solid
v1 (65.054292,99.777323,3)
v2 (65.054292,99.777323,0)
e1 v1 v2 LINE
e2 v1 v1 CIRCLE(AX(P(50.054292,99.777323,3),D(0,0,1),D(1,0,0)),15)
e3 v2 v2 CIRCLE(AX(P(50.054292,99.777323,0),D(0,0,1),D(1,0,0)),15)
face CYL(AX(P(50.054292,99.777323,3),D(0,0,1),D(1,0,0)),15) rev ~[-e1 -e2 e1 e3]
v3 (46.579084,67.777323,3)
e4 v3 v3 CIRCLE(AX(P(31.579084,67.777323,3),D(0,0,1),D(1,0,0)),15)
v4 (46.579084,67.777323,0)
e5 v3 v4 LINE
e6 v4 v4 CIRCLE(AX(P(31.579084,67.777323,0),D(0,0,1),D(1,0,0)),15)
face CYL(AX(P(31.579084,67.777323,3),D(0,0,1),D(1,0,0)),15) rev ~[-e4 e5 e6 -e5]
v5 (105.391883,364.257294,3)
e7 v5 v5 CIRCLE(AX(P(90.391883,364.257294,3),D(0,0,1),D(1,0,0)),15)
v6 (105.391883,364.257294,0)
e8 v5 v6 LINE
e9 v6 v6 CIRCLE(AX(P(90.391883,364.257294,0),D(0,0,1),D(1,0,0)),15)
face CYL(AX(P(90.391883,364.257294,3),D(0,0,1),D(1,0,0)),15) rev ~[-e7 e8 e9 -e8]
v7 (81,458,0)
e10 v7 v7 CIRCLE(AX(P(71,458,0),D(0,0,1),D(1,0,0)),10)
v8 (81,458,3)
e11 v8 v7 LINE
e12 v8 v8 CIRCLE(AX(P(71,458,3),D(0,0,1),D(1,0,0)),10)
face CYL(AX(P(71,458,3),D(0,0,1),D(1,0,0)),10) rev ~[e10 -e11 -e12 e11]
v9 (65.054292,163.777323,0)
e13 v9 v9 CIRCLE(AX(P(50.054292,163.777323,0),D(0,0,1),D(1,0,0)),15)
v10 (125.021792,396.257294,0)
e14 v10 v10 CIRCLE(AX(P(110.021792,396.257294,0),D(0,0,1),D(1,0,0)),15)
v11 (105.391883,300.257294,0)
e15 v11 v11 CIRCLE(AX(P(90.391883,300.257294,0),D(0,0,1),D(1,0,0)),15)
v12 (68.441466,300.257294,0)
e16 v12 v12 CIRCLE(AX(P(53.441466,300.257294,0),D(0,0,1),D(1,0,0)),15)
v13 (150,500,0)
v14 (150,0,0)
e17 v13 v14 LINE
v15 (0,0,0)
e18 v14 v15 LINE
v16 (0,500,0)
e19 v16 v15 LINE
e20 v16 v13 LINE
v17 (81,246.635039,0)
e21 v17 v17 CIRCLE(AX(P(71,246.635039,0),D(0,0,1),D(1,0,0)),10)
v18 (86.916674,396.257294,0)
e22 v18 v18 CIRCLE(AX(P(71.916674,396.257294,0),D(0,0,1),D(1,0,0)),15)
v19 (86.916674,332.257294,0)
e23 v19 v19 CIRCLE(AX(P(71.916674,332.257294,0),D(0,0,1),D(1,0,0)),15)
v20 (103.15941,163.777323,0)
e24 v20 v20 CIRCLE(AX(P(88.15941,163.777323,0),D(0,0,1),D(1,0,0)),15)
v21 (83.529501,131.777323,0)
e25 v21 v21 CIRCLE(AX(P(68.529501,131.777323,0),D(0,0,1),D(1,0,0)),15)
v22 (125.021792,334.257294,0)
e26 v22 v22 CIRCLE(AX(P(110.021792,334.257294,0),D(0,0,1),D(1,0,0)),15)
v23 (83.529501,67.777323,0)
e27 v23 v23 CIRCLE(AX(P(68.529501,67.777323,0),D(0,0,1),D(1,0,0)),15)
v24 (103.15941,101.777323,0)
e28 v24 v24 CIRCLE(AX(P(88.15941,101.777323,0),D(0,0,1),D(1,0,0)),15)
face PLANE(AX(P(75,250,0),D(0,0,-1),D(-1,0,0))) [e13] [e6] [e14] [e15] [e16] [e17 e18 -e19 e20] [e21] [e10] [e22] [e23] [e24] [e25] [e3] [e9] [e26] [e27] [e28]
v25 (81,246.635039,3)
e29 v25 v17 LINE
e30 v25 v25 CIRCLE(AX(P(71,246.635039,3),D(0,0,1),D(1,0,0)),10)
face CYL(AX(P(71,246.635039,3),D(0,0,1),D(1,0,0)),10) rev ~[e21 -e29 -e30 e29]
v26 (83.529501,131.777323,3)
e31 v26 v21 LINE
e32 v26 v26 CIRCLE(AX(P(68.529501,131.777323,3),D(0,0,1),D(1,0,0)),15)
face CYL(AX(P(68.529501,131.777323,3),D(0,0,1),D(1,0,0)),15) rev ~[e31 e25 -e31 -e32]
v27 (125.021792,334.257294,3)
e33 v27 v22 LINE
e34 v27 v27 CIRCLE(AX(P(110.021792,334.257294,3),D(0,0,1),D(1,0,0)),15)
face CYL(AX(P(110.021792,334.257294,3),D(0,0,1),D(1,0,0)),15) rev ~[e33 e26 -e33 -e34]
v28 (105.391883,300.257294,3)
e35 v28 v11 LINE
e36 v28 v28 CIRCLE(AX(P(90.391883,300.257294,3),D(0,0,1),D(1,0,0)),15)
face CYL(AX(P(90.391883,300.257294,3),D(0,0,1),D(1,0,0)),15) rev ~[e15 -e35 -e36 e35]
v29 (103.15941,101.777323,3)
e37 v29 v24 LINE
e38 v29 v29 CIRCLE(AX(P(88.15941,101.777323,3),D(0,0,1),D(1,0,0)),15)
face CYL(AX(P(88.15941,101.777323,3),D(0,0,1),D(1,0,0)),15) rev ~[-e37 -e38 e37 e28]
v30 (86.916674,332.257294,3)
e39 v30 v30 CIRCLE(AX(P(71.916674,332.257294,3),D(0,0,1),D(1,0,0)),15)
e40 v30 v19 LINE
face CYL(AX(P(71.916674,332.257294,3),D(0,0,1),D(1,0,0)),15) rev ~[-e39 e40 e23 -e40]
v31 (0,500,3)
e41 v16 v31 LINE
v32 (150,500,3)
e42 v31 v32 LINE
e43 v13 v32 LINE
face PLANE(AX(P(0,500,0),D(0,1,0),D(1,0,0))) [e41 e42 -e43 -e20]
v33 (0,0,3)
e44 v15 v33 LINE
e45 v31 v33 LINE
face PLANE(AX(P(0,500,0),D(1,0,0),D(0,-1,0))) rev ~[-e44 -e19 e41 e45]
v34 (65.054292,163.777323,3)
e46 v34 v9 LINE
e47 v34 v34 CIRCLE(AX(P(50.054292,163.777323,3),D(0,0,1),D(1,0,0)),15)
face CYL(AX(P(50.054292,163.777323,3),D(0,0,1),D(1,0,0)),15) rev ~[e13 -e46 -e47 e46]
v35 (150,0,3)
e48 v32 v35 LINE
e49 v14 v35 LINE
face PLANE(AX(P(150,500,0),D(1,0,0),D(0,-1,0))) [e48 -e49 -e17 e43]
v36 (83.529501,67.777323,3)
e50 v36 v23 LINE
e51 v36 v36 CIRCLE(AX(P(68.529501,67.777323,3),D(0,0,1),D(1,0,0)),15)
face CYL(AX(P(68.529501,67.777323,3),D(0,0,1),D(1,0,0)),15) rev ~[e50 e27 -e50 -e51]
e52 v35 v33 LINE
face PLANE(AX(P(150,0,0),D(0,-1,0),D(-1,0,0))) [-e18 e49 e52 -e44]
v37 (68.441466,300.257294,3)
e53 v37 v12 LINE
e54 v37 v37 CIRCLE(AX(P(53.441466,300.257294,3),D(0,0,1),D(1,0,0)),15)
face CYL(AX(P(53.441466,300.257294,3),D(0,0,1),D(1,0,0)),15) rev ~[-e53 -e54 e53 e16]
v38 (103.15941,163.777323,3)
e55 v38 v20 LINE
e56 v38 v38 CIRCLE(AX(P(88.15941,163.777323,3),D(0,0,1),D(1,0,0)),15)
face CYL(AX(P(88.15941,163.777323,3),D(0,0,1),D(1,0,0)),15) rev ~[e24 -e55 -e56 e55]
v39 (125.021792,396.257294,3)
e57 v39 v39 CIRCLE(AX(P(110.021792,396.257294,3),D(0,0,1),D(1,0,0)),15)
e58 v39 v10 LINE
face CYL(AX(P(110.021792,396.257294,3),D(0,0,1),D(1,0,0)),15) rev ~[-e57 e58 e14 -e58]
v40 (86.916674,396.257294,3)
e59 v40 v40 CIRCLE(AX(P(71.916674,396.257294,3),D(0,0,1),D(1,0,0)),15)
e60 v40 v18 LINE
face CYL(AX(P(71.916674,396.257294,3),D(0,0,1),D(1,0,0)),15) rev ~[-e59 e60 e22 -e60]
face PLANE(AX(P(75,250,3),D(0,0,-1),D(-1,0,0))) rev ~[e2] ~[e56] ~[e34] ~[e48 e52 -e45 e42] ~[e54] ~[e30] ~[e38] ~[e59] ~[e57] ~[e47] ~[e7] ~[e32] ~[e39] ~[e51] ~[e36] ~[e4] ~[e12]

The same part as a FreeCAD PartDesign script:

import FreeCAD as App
import Part
import Sketcher

doc = App.newDocument("Part")
body = doc.addObject("PartDesign::Body", "Body")

sketch1 = body.newObject("Sketcher::SketchObject", "Sketch")
sketch1.AttachmentSupport = (doc.getObject("XY_Plane"), [""])
sketch1.MapMode = "FlatFace"
sketch1.addGeometry(Part.LineSegment(App.Vector(150, 500, 0), App.Vector(0, 500, 0)), False)
sketch1.addGeometry(Part.LineSegment(App.Vector(0, 500, 0), App.Vector(0, 0, 0)), False)
sketch1.addGeometry(Part.LineSegment(App.Vector(0, 0, 0), App.Vector(150, 0, 0)), False)
sketch1.addGeometry(Part.LineSegment(App.Vector(150, 0, 0), App.Vector(150, 500, 0)), False)
sketch1.addConstraint(Sketcher.Constraint("Coincident", 0, 2, 1, 1))
sketch1.addConstraint(Sketcher.Constraint("Coincident", 1, 2, 2, 1))
sketch1.addConstraint(Sketcher.Constraint("Coincident", 2, 2, 3, 1))
sketch1.addConstraint(Sketcher.Constraint("Coincident", 3, 2, 0, 1))
sketch1.addConstraint(Sketcher.Constraint("Horizontal", 0))
sketch1.addConstraint(Sketcher.Constraint("Vertical", 1))
sketch1.addConstraint(Sketcher.Constraint("Horizontal", 2))
sketch1.addConstraint(Sketcher.Constraint("Vertical", 3))
sketch1.addConstraint(Sketcher.Constraint("Coincident", 1, 2, -1, 1))
sketch1.addConstraint(Sketcher.Constraint("DistanceX", 0, 2, 0, 1, 150.0))
sketch1.addConstraint(Sketcher.Constraint("DistanceY", 1, 2, 1, 1, 500.0))
pad1 = body.newObject("PartDesign::Pad", "Pad")
pad1.Profile = sketch1
pad1.Length = 3

sketch2 = body.newObject("Sketcher::SketchObject", "Sketch001")
sketch2.AttachmentSupport = (doc.getObject("XY_Plane"), [""])
sketch2.MapMode = "FlatFace"
sketch2.AttachmentOffset = App.Placement(App.Vector(0, 0, 3), App.Rotation())
sketch2.addGeometry(Part.Circle(App.Vector(32, 68, 0), App.Vector(0, 0, 1), 15), False)
sketch2.addGeometry(Part.Circle(App.Vector(50, 100, 0), App.Vector(0, 0, 1), 15), False)
sketch2.addGeometry(Part.Circle(App.Vector(69, 132, 0), App.Vector(0, 0, 1), 15), False)
sketch2.addGeometry(Part.Circle(App.Vector(50, 164, 0), App.Vector(0, 0, 1), 15), False)
sketch2.addGeometry(Part.Circle(App.Vector(71, 247, 0), App.Vector(0, 0, 1), 10), False)
sketch2.addGeometry(Part.Circle(App.Vector(69, 68, 0), App.Vector(0, 0, 1), 15), False)
sketch2.addGeometry(Part.Circle(App.Vector(88, 102, 0), App.Vector(0, 0, 1), 15), False)
sketch2.addGeometry(Part.Circle(App.Vector(88, 164, 0), App.Vector(0, 0, 1), 15), False)
sketch2.addGeometry(Part.Circle(App.Vector(53, 300, 0), App.Vector(0, 0, 1), 15), False)
sketch2.addGeometry(Part.Circle(App.Vector(72, 332, 0), App.Vector(0, 0, 1), 15), False)
sketch2.addGeometry(Part.Circle(App.Vector(90, 364, 0), App.Vector(0, 0, 1), 15), False)
sketch2.addGeometry(Part.Circle(App.Vector(72, 396, 0), App.Vector(0, 0, 1), 15), False)
sketch2.addGeometry(Part.Circle(App.Vector(71, 458, 0), App.Vector(0, 0, 1), 10), False)
sketch2.addGeometry(Part.Circle(App.Vector(90, 300, 0), App.Vector(0, 0, 1), 15), False)
sketch2.addGeometry(Part.Circle(App.Vector(110, 334, 0), App.Vector(0, 0, 1), 15), False)
sketch2.addGeometry(Part.Circle(App.Vector(110, 396, 0), App.Vector(0, 0, 1), 15), False)
sketch2.addConstraint(Sketcher.Constraint("Equal", 0, 1))
sketch2.addConstraint(Sketcher.Constraint("Equal", 1, 2))
sketch2.addConstraint(Sketcher.Constraint("Equal", 2, 3))
sketch2.addConstraint(Sketcher.Constraint("Equal", 3, 5))
sketch2.addConstraint(Sketcher.Constraint("Equal", 5, 6))
sketch2.addConstraint(Sketcher.Constraint("Equal", 6, 7))
sketch2.addConstraint(Sketcher.Constraint("Equal", 7, 8))
sketch2.addConstraint(Sketcher.Constraint("Equal", 8, 9))
sketch2.addConstraint(Sketcher.Constraint("Equal", 9, 10))
sketch2.addConstraint(Sketcher.Constraint("Equal", 10, 11))
sketch2.addConstraint(Sketcher.Constraint("Equal", 4, 12))
sketch2.addConstraint(Sketcher.Constraint("Equal", 11, 13))
sketch2.addConstraint(Sketcher.Constraint("Equal", 13, 14))
sketch2.addConstraint(Sketcher.Constraint("Equal", 14, 15))
sketch2.addConstraint(Sketcher.Constraint("Horizontal", 0, 3, 5, 3))
sketch2.addConstraint(Sketcher.Constraint("Horizontal", 3, 3, 7, 3))
sketch2.addConstraint(Sketcher.Constraint("Horizontal", 8, 3, 13, 3))
sketch2.addConstraint(Sketcher.Constraint("Horizontal", 11, 3, 15, 3))
sketch2.addConstraint(Sketcher.Constraint("Vertical", 1, 3, 3, 3))
sketch2.addConstraint(Sketcher.Constraint("Vertical", 2, 3, 5, 3))
sketch2.addConstraint(Sketcher.Constraint("Vertical", 6, 3, 7, 3))
sketch2.addConstraint(Sketcher.Constraint("Vertical", 9, 3, 11, 3))
sketch2.addConstraint(Sketcher.Constraint("Vertical", 4, 3, 12, 3))
sketch2.addConstraint(Sketcher.Constraint("Vertical", 10, 3, 13, 3))
sketch2.addConstraint(Sketcher.Constraint("Vertical", 14, 3, 15, 3))
sketch2.addConstraint(Sketcher.Constraint("Diameter", 0, 30.0))
sketch2.addConstraint(Sketcher.Constraint("Diameter", 4, 20.0))
sketch2.addConstraint(Sketcher.Constraint("DistanceX", -1, 1, 4, 3, 71.0))
sketch2.addConstraint(Sketcher.Constraint("DistanceY", -1, 1, 12, 3, 458.0))
sketch2.addConstraint(Sketcher.Constraint("DistanceY", 0, 3, 1, 3, 32.0))
sketch2.addConstraint(Sketcher.Constraint("DistanceY", 1, 3, 2, 3, 32.0))
sketch2.addConstraint(Sketcher.Constraint("DistanceY", 2, 3, 3, 3, 32.0))
sketch2.addConstraint(Sketcher.Constraint("DistanceY", 6, 3, 2, 3, 30.0))
sketch2.addConstraint(Sketcher.Constraint("DistanceY", 8, 3, 9, 3, 32.0))
sketch2.addConstraint(Sketcher.Constraint("DistanceY", 9, 3, 10, 3, 32.0))
sketch2.addConstraint(Sketcher.Constraint("DistanceY", 10, 3, 11, 3, 32.0))
sketch2.addConstraint(Sketcher.Constraint("DistanceY", 14, 3, 10, 3, 30.0))
sketch2.addConstraint(Sketcher.Constraint("DistanceX", -1, 1, 2, 3, 68.529501))
sketch2.addConstraint(Sketcher.Constraint("DistanceX", -1, 1, 1, 3, 50.054292))
sketch2.addConstraint(Sketcher.Constraint("DistanceY", -1, 1, 4, 3, 246.635039))
sketch2.addConstraint(Sketcher.Constraint("DistanceX", -1, 1, 6, 3, 88.15941))
sketch2.addConstraint(Sketcher.Constraint("DistanceY", 3, 3, 8, 3, 136.479971))
sketch2.addConstraint(Sketcher.Constraint("DistanceX", 8, 3, 9, 3, 18.475208))
sketch2.addConstraint(Sketcher.Constraint("DistanceX", 9, 3, 10, 3, 18.475209))
sketch2.addConstraint(Sketcher.Constraint("DistanceX", 3, 3, 10, 3, 40.337591))
sketch2.addConstraint(Sketcher.Constraint("DistanceX", 10, 3, 14, 3, 19.629909))
sketch2.addConstraint(Sketcher.Constraint("DistanceX", -1, 1, 0, 3, 31.579084))
sketch2.addConstraint(Sketcher.Constraint("DistanceY", -1, 1, 0, 3, 67.777323))
pocket1 = body.newObject("PartDesign::Pocket", "Pocket")
pocket1.Profile = sketch2
pocket1.Type = "ThroughAll"

doc.recompute()
